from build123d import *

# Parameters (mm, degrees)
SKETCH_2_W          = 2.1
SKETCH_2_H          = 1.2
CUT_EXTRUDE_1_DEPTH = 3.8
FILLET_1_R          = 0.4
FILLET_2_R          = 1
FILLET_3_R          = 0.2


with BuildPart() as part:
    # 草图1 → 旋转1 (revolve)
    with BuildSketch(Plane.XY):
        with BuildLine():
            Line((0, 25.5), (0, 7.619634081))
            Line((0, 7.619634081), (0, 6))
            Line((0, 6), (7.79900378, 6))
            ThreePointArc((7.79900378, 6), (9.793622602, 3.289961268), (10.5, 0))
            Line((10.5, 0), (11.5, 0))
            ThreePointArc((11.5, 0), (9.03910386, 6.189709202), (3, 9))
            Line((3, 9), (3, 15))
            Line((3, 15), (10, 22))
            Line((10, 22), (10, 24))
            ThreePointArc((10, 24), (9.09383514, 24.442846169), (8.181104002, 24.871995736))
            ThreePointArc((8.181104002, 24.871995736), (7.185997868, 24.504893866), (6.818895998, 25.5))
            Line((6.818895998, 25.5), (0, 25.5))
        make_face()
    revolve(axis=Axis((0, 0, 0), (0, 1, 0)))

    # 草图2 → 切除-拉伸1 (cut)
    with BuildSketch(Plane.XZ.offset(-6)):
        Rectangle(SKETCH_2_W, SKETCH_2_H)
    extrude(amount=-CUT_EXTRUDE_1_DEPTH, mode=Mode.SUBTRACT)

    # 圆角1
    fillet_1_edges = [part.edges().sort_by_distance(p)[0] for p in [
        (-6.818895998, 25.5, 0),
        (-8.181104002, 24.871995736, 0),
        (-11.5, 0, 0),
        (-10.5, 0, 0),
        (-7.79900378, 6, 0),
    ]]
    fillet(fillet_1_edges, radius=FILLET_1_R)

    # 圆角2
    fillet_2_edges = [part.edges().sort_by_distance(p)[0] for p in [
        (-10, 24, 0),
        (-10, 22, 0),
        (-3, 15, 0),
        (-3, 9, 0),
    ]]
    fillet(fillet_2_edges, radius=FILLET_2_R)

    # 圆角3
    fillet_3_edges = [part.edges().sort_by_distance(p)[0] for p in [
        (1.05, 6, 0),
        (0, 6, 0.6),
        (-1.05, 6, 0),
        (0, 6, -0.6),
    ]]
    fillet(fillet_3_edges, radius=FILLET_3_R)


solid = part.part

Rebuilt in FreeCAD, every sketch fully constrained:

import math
import FreeCAD as App
import Part
import Sketcher
from FreeCAD import Vector
Q = App.Units.Quantity


def edges_at(feature, points):
    """Names of the edges that pass closest to the given points."""
    edges = feature.Shape.Edges
    near = lambda p: min(range(len(edges)), key=lambda i: edges[i].distToShape(Part.Vertex(*p))[0])
    return sorted({f"Edge{near(p) + 1}" for p in points})


def add_polygon(sketch, points):
    """Adds a closed chain of lines whose ends are joined by coincident constraints."""
    first, n = sketch.GeometryCount, len(points)
    for a, b in zip(points, points[1:] + points[:1]):
        sketch.addGeometry(Part.LineSegment(App.Vector(*a, 0), App.Vector(*b, 0)), False)
    for i in range(n):
        sketch.addConstraint(Sketcher.Constraint("Coincident", first + i, 2, first + (i + 1) % n, 1))

doc = App.newDocument("Part")
body = doc.addObject("PartDesign::Body", "Body")

# Sketch on XY plane
sketch1 = body.newObject("Sketcher::SketchObject", "Sketch")
sketch1.AttachmentSupport = (doc.getObject("XY_Plane"), [""])
sketch1.MapMode = "FlatFace"
sketch1.addGeometry([
    Part.LineSegment(Vector(0, 25.5, 0), Vector(0, 6, 0)),  # 0
    Part.LineSegment(Vector(0, 6, 0), Vector(7.799004, 6, 0)),  # 1
    Part.ArcOfCircle(Part.Circle(Vector(2.485294, 0, 0), Vector(0, 0, 1), 8.014706), math.radians(0), math.radians(48.471312)),  # 2
    Part.LineSegment(Vector(10.5, 0, 0), Vector(11.5, 0, 0)),  # 3
    Part.ArcOfCircle(Part.Circle(Vector(2.485294, 0, 0), Vector(0, 0, 1), 9.014706), math.radians(0), math.radians(86.726846)),  # 4
    Part.LineSegment(Vector(3, 9, 0), Vector(3, 15, 0)),  # 5
    Part.LineSegment(Vector(3, 15, 0), Vector(10, 22, 0)),  # 6
    Part.LineSegment(Vector(10, 22, 0), Vector(10, 24, 0)),  # 7
    Part.ArcOfCircle(Part.Circle(Vector(-19.857863, -35.947504, 0), Vector(0, 0, 1), 66.9716), math.radians(63.523628), math.radians(65.249383)),  # 8
    Part.ArcOfCircle(Part.Circle(Vector(7.5, 25.185998, 0), Vector(0, 0, 1), 0.75), math.radians(155.249383), math.radians(335.249383)),  # 9
    Part.LineSegment(Vector(6.818896, 25.5, 0), Vector(0, 25.5, 0)),  # 10
], False)
sketch1.addConstraint([
    Sketcher.Constraint("Coincident", 0, 2, 1, 1),
    Sketcher.Constraint("Coincident", 1, 2, 2, 2),
    Sketcher.Constraint("Coincident", 2, 1, 3, 1),
    Sketcher.Constraint("Coincident", 3, 2, 4, 1),
    Sketcher.Constraint("Coincident", 4, 2, 5, 1),
    Sketcher.Constraint("Coincident", 5, 2, 6, 1),
    Sketcher.Constraint("Coincident", 6, 2, 7, 1),
    Sketcher.Constraint("Coincident", 7, 2, 8, 1),
    Sketcher.Constraint("Coincident", 8, 2, 9, 2),
    Sketcher.Constraint("Coincident", 9, 1, 10, 1),
    Sketcher.Constraint("Coincident", 10, 2, 0, 1),
    Sketcher.Constraint("Vertical", 0),
    Sketcher.Constraint("Horizontal", 1),
    Sketcher.Constraint("Horizontal", 3),
    Sketcher.Constraint("Vertical", 5),
    Sketcher.Constraint("Vertical", 7),
    Sketcher.Constraint("Horizontal", 10),
    Sketcher.Constraint("Coincident", 4, 3, 2, 3),
    Sketcher.Constraint("PointOnObject", 2, 3, -1),
    Sketcher.Constraint("PointOnObject", 0, 2, -2),
    Sketcher.Constraint("PointOnObject", 2, 1, -1),
    Sketcher.Constraint("DistanceX", 3, 1, 3, 2, 1.0),
    Sketcher.Constraint("DistanceY", 5, 1, 5, 2, 6.0),
    Sketcher.Constraint("DistanceY", 7, 1, 7, 2, 2.0),
    Sketcher.Constraint("Angle", 6, Q("45 deg")),
    Sketcher.Constraint("Radius", 9, 0.75),
    Sketcher.Constraint("DistanceY", 0, 2, 0, 1, 19.5),
    Sketcher.Constraint("DistanceY", -1, 1, 0, 2, 6.0),
    Sketcher.Constraint("DistanceX", -1, 1, 4, 2, 3.0),
    Sketcher.Constraint("DistanceY", -1, 1, 4, 2, 9.0),
    Sketcher.Constraint("DistanceX", -1, 1, 6, 2, 10.0),
    Sketcher.Constraint("DistanceX", 9, 3, 2, 1, 3.0),
    Sketcher.Constraint("DistanceX", -1, 1, 9, 3, 7.5),
    Sketcher.Constraint("Radius", 8, 66.9716),
    Sketcher.Constraint("DistanceY", 8, 3, 9, 3, 61.133501),
    Sketcher.Constraint("DistanceX", 10, 2, 10, 1, 6.818896),
])
revolution = body.newObject("PartDesign::Revolution", "Revolution")
revolution.Profile = sketch1
revolution.ReferenceAxis = (sketch1, ["V_Axis"])
revolution.Angle = 360

# Sketch on XZ plane
sketch2 = body.newObject("Sketcher::SketchObject", "Sketch001")
sketch2.AttachmentSupport = (doc.getObject("XZ_Plane"), [""])
sketch2.MapMode = "FlatFace"
sketch2.AttachmentOffset = App.Placement(Vector(0, 0, -6), App.Rotation())
add_polygon(sketch2, [(-1.05, 0.6), (-1.05, -0.6), (1.05, -0.6), (1.05, 0.6)])  # lines 0-3
sketch2.addConstraint([
    Sketcher.Constraint("Vertical", 0),
    Sketcher.Constraint("Horizontal", 1),
    Sketcher.Constraint("Vertical", 2),
    Sketcher.Constraint("Horizontal", 3),
    Sketcher.Constraint("Symmetric", 0, 2, 2, 2, -1, 1),
    Sketcher.Constraint("DistanceX", 1, 1, 1, 2, 2.1),
    Sketcher.Constraint("DistanceY", 0, 2, 0, 1, 1.2),
])
pocket1 = body.newObject("PartDesign::Pocket", "Pocket")
pocket1.Profile = sketch2
pocket1.Length = 3.8
doc.recompute()

fillet = body.newObject("PartDesign::Fillet", "Fillet")
fillet.Base = (pocket1, edges_at(pocket1, [
    (-6.819, 25.5, 0),
    (-8.181, 24.872, 0),
    (-11.5, 0, 0),
    (-10.5, 0, 0),
    (-7.799, 6, 0),
]))
fillet.Radius = 0.4
doc.recompute()

fillet2 = body.newObject("PartDesign::Fillet", "Fillet001")
fillet2.Base = (fillet, edges_at(fillet, [
    (-10, 24, 0),
    (-10, 22, 0),
    (-3, 15, 0),
    (-3, 9, 0),
]))
fillet2.Radius = 1
doc.recompute()

fillet3 = body.newObject("PartDesign::Fillet", "Fillet002")
fillet3.Base = (fillet2, edges_at(fillet2, [
    (1.05, 6, 0),
    (0, 6, 0.6),
    (-1.05, 6, 0),
    (0, 6, -0.6),
]))
fillet3.Radius = 0.2

doc.recompute()
